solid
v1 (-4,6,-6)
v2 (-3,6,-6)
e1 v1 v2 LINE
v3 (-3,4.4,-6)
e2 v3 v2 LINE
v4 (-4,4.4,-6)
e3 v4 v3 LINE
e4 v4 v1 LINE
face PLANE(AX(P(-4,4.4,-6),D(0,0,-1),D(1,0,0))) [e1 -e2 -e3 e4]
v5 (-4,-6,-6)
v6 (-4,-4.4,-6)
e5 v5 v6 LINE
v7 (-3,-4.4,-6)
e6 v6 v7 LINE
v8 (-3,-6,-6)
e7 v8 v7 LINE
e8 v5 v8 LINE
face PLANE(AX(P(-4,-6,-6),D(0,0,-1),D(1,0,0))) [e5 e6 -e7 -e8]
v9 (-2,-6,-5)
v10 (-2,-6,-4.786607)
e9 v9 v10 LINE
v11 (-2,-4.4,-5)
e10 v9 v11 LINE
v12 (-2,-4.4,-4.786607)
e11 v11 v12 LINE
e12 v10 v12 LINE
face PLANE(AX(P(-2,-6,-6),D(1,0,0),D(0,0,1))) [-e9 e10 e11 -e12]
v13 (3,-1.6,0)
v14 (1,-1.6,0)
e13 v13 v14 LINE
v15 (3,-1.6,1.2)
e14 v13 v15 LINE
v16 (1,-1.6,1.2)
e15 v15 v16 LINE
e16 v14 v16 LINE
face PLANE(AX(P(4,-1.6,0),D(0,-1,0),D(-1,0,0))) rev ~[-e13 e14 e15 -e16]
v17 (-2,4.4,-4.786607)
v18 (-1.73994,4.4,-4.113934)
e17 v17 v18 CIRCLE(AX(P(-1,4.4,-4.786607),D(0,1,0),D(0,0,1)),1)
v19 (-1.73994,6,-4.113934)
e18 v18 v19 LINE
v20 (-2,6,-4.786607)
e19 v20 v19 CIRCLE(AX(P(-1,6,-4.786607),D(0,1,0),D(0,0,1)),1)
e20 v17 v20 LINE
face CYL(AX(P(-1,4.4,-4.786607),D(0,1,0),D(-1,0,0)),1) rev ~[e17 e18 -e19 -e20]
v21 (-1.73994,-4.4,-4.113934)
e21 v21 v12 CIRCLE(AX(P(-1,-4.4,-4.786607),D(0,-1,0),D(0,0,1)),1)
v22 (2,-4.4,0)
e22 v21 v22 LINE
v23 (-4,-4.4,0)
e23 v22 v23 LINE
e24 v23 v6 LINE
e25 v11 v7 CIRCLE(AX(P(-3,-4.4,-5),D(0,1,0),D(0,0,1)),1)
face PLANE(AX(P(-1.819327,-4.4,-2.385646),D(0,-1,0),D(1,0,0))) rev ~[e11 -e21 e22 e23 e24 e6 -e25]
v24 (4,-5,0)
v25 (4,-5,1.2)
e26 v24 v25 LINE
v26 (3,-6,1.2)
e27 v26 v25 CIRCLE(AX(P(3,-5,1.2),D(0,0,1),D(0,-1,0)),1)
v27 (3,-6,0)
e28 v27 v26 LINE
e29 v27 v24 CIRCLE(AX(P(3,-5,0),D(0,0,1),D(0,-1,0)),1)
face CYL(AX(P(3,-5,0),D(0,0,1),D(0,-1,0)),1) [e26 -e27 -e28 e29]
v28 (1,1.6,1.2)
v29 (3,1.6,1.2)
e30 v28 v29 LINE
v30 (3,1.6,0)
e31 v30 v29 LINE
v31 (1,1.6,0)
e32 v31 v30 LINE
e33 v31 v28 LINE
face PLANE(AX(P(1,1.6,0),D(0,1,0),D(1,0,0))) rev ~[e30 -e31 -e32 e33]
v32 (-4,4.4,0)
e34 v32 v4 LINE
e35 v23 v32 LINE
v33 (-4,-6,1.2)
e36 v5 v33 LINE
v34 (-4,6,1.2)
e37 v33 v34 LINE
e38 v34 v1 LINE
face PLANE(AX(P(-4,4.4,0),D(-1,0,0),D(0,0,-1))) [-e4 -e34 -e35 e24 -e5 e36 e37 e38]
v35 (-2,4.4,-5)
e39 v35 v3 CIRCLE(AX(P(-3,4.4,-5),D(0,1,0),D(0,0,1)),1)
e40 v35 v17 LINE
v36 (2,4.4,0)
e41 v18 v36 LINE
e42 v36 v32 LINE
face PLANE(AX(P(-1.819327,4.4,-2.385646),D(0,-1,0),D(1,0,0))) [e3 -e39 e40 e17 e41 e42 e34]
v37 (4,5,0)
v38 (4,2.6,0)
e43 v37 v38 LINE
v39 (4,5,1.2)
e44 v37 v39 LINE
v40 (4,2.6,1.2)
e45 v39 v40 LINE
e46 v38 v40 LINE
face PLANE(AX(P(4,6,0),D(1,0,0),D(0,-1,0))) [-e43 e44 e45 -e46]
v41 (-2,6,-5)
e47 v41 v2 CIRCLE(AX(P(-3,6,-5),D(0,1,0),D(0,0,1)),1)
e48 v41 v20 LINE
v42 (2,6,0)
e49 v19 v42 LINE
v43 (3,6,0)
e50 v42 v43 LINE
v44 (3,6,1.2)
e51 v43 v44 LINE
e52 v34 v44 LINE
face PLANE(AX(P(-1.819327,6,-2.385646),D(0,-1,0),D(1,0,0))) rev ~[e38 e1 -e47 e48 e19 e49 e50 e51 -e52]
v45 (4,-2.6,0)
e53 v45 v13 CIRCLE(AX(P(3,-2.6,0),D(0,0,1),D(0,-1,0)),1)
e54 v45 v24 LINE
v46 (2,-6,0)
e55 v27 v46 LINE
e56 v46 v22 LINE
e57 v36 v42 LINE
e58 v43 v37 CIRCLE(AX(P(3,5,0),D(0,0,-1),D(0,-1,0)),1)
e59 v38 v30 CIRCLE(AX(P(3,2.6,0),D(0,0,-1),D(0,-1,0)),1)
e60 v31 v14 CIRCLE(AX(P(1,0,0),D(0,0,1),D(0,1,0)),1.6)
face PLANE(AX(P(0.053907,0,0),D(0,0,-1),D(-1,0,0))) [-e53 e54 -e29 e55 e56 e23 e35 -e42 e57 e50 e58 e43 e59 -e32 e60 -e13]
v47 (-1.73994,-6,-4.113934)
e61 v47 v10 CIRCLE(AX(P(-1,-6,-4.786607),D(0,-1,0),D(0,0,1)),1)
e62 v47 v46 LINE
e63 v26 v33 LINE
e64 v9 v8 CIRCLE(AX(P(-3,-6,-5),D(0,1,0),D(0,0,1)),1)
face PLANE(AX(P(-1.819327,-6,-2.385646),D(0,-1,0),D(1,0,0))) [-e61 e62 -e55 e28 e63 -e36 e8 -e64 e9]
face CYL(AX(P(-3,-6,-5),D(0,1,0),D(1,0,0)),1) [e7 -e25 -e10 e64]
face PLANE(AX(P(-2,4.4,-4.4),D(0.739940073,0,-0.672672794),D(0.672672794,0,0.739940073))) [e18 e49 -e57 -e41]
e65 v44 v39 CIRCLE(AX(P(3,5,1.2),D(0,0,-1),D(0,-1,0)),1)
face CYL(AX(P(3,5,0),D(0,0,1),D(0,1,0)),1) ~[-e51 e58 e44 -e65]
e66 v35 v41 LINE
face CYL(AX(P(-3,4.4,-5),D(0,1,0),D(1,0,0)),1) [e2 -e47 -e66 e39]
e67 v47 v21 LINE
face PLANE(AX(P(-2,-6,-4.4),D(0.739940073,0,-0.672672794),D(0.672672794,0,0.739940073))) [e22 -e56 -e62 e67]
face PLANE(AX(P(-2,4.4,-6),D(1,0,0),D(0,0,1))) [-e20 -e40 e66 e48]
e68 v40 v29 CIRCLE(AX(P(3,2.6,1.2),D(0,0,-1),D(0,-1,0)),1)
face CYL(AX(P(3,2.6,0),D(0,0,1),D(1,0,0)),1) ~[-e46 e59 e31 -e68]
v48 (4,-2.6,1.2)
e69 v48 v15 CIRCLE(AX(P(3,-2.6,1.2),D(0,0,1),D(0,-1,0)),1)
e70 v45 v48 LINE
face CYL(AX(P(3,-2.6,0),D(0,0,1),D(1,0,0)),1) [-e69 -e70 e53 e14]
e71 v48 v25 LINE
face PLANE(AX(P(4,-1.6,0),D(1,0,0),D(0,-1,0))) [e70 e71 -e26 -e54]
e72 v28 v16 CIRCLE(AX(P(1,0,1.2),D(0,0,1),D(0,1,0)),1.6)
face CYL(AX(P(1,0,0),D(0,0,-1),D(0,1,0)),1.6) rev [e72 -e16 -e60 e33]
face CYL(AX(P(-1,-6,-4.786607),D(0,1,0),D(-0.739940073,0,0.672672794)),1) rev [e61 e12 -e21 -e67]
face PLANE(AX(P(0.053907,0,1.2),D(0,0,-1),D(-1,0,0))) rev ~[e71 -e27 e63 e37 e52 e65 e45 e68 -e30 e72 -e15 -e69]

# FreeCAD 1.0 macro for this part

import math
import FreeCAD as App
import Part
import Sketcher


def edges_at(feature, points):
    """Names of the edges that pass closest to the given points."""
    edges = feature.Shape.Edges
    near = lambda p: min(range(len(edges)), key=lambda i: edges[i].distToShape(Part.Vertex(*p))[0])
    return sorted({f"Edge{near(p) + 1}" for p in points})

doc = App.newDocument("Part")
body = doc.addObject("PartDesign::Body", "Body")

# Sketch on XY plane
sketch1 = body.newObject("Sketcher::SketchObject", "Sketch")
sketch1.AttachmentSupport = (doc.getObject("XY_Plane"), [""])
sketch1.MapMode = "FlatFace"
sketch1.addGeometry([
    Part.LineSegment(App.Vector(4, 6, 0), App.Vector(-4, 6, 0)),  # 0
    Part.LineSegment(App.Vector(-4, 6, 0), App.Vector(-4, -6, 0)),  # 1
    Part.LineSegment(App.Vector(-4, -6, 0), App.Vector(4, -6, 0)),  # 2
    Part.LineSegment(App.Vector(4, -6, 0), App.Vector(4, -1.6, 0)),  # 3
    Part.LineSegment(App.Vector(4, -1.6, 0), App.Vector(1, -1.6, 0)),  # 4
    Part.ArcOfCircle(Part.Circle(App.Vector(1, 0, 0), App.Vector(0, 0, 1), 1.6), math.radians(90), math.radians(270)),  # 5
    Part.LineSegment(App.Vector(1, 1.6, 0), App.Vector(4, 1.6, 0)),  # 6
    Part.LineSegment(App.Vector(4, 1.6, 0), App.Vector(4, 6, 0)),  # 7
], False)
sketch1.addConstraint([
    Sketcher.Constraint("Coincident", 0, 2, 1, 1),
    Sketcher.Constraint("Coincident", 1, 2, 2, 1),
    Sketcher.Constraint("Coincident", 2, 2, 3, 1),
    Sketcher.Constraint("Coincident", 3, 2, 4, 1),
    Sketcher.Constraint("Tangent", 4, 2, 5, 2),
    Sketcher.Constraint("Tangent", 5, 1, 6, 1),
    Sketcher.Constraint("Coincident", 6, 2, 7, 1),
    Sketcher.Constraint("Coincident", 7, 2, 0, 1),
    Sketcher.Constraint("Horizontal", 0),
    Sketcher.Constraint("Vertical", 1),
    Sketcher.Constraint("Horizontal", 2),
    Sketcher.Constraint("Vertical", 3),
    Sketcher.Constraint("Horizontal", 4),
    Sketcher.Constraint("Horizontal", 6),
    Sketcher.Constraint("Vertical", 7),
    Sketcher.Constraint("Symmetric", 0, 2, 2, 2, -1, 1),
    Sketcher.Constraint("Symmetric", 3, 2, 6, 2, -1),
    Sketcher.Constraint("Radius", 5, 1.6),
    Sketcher.Constraint("DistanceX", 0, 2, 0, 1, 8.0),
    Sketcher.Constraint("DistanceX", 4, 2, 4, 1, 3.0),
    Sketcher.Constraint("DistanceY", 1, 2, 1, 1, 12.0),
])
pad1 = body.newObject("PartDesign::Pad", "Pad")
pad1.Profile = sketch1
pad1.Length = 1.2

# Sketch on XZ plane
sketch2 = body.newObject("Sketcher::SketchObject", "Sketch001")
sketch2.AttachmentSupport = (doc.getObject("XZ_Plane"), [""])
sketch2.MapMode = "FlatFace"
sketch2.AttachmentOffset = App.Placement(App.Vector(0, 0, 6), App.Rotation())
sketch2.addGeometry([
    Part.LineSegment(App.Vector(-4, 0, 0), App.Vector(-4, -6, 0)),  # 0
    Part.LineSegment(App.Vector(-4, -6, 0), App.Vector(-2, -6, 0)),  # 1
    Part.LineSegment(App.Vector(-2, -6, 0), App.Vector(-2, -4.4, 0)),  # 2
    Part.LineSegment(App.Vector(-2, -4.4, 0), App.Vector(2, 0, 0)),  # 3
    Part.LineSegment(App.Vector(2, 0, 0), App.Vector(-4, 0, 0)),  # 4
], False)
sketch2.addConstraint([
    Sketcher.Constraint("Coincident", 0, 2, 1, 1),
    Sketcher.Constraint("Coincident", 1, 2, 2, 1),
    Sketcher.Constraint("Coincident", 2, 2, 3, 1),
    Sketcher.Constraint("Coincident", 3, 2, 4, 1),
    Sketcher.Constraint("Coincident", 4, 2, 0, 1),
    Sketcher.Constraint("Vertical", 0),
    Sketcher.Constraint("Horizontal", 1),
    Sketcher.Constraint("Vertical", 2),
    Sketcher.Constraint("Horizontal", 4),
    Sketcher.Constraint("PointOnObject", 3, 2, -1),
    Sketcher.Constraint("Equal", 4, 0),
    Sketcher.Constraint("DistanceX", 1, 1, 1, 2, 2.0),
    Sketcher.Constraint("DistanceX", 4, 2, 4, 1, 6.0),
    Sketcher.Constraint("DistanceY", 2, 1, 2, 2, 1.6),
    Sketcher.Constraint("DistanceX", 0, 2, -1, 1, 4.0),
])
pad2 = body.newObject("PartDesign::Pad", "Pad001")
pad2.Profile = sketch2
pad2.Length = 1.6
pad2.Reversed = True
doc.recompute()

linearpattern = body.newObject("PartDesign::LinearPattern", "LinearPattern")
linearpattern.Originals = [pad2]
linearpattern.Direction = (doc.getObject("Y_Axis"), [""])
linearpattern.Mode = "offset"
linearpattern.Offset = 10.4
linearpattern.Occurrences = 2
body.Tip = linearpattern
doc.recompute()

fillet = body.newObject("PartDesign::Fillet", "Fillet")
fillet.Base = (linearpattern, edges_at(linearpattern, [(-2, -5.2, -6), (-2, 5.2, -6)]))
fillet.Radius = 1
doc.recompute()

fillet2 = body.newObject("PartDesign::Fillet", "Fillet001")
fillet2.Base = (fillet, edges_at(fillet, [(-2, -5.2, -4.4), (-2, 5.2, -4.4)]))
fillet2.Radius = 1
doc.recompute()

fillet3 = body.newObject("PartDesign::Fillet", "Fillet002")
fillet3.Base = (fillet2, edges_at(fillet2, [
    (4, -6, 0.6),
    (4, -1.6, 0.6),
    (4, 1.6, 0.6),
    (4, 6, 0.6),
]))
fillet3.Radius = 1

doc.recompute()
